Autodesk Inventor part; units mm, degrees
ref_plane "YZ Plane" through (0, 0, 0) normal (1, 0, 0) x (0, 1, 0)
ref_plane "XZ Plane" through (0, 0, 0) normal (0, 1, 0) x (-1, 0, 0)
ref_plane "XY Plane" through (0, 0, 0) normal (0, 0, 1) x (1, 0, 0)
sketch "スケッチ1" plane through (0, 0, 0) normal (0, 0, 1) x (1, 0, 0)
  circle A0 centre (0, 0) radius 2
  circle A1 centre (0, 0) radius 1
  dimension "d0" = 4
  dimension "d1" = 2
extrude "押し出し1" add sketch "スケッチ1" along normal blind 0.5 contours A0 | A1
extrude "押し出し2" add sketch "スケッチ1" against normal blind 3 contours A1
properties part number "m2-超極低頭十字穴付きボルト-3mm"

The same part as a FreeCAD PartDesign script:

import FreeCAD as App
import Part
import Sketcher

V = App.Vector
Q = App.Units.Quantity

doc = App.newDocument("Part")
body = doc.addObject("PartDesign::Body", "Body")

# Sketch on XY plane
sketch1 = body.newObject("Sketcher::SketchObject", "Sketch")
sketch1.AttachmentSupport = (doc.getObject("XY_Plane"), [""])
sketch1.MapMode = "FlatFace"
sketch1.addGeometry(Part.Circle(V(0, 0, 0), V(0, 0, 1), 2), False)
sketch1.addConstraint([
    Sketcher.Constraint("Coincident", 0, 3, -1, 1),
    Sketcher.Constraint("Diameter", 0, Q("4 mm")),
])
pad1 = body.newObject("PartDesign::Pad", "Pad")
pad1.Profile = sketch1
pad1.Length = 0.5

# Sketch on XY plane
sketch2 = body.newObject("Sketcher::SketchObject", "Sketch001")
sketch2.AttachmentSupport = (doc.getObject("XY_Plane"), [""])
sketch2.MapMode = "FlatFace"
sketch2.addGeometry(Part.Circle(V(0, 0, 0), V(0, 0, 1), 1), False)
sketch2.addConstraint([
    Sketcher.Constraint("Coincident", 0, 3, -1, 1),
    Sketcher.Constraint("Diameter", 0, Q("2 mm")),
])
pad2 = body.newObject("PartDesign::Pad", "Pad001")
pad2.Profile = sketch2
pad2.Length = 3
pad2.Reversed = True

doc.recompute()
